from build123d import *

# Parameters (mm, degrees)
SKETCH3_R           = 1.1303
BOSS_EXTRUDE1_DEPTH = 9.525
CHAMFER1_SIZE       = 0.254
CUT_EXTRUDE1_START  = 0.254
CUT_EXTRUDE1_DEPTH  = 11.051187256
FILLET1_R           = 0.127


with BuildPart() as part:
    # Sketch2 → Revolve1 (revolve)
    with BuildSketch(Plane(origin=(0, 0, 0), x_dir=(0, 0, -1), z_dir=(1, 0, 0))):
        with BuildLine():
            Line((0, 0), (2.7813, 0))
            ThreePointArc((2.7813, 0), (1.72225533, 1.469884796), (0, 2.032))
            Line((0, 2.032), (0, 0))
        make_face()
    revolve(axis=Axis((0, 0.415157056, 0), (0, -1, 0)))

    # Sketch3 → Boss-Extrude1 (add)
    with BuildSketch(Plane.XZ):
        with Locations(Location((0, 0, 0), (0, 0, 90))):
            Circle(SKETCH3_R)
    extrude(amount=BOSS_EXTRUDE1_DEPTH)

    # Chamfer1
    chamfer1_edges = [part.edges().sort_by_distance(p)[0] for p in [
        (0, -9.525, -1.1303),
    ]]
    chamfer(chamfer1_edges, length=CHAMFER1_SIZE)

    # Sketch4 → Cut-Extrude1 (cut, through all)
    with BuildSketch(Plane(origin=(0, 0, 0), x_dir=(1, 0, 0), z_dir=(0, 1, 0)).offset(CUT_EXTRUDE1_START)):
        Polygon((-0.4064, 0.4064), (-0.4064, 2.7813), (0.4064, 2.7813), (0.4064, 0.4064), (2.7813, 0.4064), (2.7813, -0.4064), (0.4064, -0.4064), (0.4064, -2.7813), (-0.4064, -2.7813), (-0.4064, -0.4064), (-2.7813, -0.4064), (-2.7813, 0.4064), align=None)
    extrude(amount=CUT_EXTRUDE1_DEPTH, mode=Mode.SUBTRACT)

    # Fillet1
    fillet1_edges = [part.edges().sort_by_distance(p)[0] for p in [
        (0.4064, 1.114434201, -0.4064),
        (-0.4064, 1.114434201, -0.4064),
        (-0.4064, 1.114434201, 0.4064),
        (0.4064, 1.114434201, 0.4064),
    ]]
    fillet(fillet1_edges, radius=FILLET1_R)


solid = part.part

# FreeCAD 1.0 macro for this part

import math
import FreeCAD as App
import Part
import Sketcher
Q = App.Units.Quantity


def edges_at(feature, points):
    """Names of the edges that pass closest to the given points."""
    edges = feature.Shape.Edges
    near = lambda p: min(range(len(edges)), key=lambda i: edges[i].distToShape(Part.Vertex(*p))[0])
    return sorted({f"Edge{near(p) + 1}" for p in points})

doc = App.newDocument("Part")
body = doc.addObject("PartDesign::Body", "Body")

# Sketch on YZ plane
sketch1 = body.newObject("Sketcher::SketchObject", "Sketch")
sketch1.AttachmentSupport = (doc.getObject("YZ_Plane"), [""])
sketch1.MapMode = "FlatFace"
sketch1.addGeometry(Part.LineSegment(App.Vector(0, 0, 0), App.Vector(0, -2.7813, 0)), False)
sketch1.addGeometry(Part.ArcOfCircle(Part.Circle(App.Vector(-0.887452, 0, 0), App.Vector(0, 0, 1), 2.919452), math.radians(-72.303251), math.radians(0)), False)
sketch1.addGeometry(Part.LineSegment(App.Vector(2.032, 0, 0), App.Vector(0, 0, 0)), False)
sketch1.addConstraint(Sketcher.Constraint("Coincident", 0, 2, 1, 1))
sketch1.addConstraint(Sketcher.Constraint("Coincident", 1, 2, 2, 1))
sketch1.addConstraint(Sketcher.Constraint("Coincident", 2, 2, 0, 1))
sketch1.addConstraint(Sketcher.Constraint("Vertical", 0))
sketch1.addConstraint(Sketcher.Constraint("Horizontal", 2))
sketch1.addConstraint(Sketcher.Constraint("Coincident", 2, 2, -1, 1))
sketch1.addConstraint(Sketcher.Constraint("PointOnObject", 1, 3, -1))
sketch1.addConstraint(Sketcher.Constraint("DistanceX", 2, 2, 2, 1, Q("0.08 in")))
sketch1.addConstraint(Sketcher.Constraint("DistanceY", 0, 2, 0, 1, Q("0.1095 in")))
revolution = body.newObject("PartDesign::Revolution", "Revolution")
revolution.Profile = sketch1
revolution.ReferenceAxis = (sketch1, ["H_Axis"])
revolution.Angle = 360

# Sketch on XZ plane
sketch2 = body.newObject("Sketcher::SketchObject", "Sketch001")
sketch2.AttachmentSupport = (doc.getObject("XZ_Plane"), [""])
sketch2.MapMode = "FlatFace"
sketch2.addGeometry(Part.Circle(App.Vector(0, 0, 0), App.Vector(0, 0, 1), 1.1303), False)
sketch2.addConstraint(Sketcher.Constraint("Coincident", 0, 3, -1, 1))
sketch2.addConstraint(Sketcher.Constraint("Diameter", 0, Q("0.089 in")))
pad1 = body.newObject("PartDesign::Pad", "Pad")
pad1.Profile = sketch2
pad1.Length = Q("0.375 in")
doc.recompute()

chamfer = body.newObject("PartDesign::Chamfer", "Chamfer")
chamfer.Base = (pad1, edges_at(pad1, [(0, -9.525, -1.13)]))
chamfer.Size = Q("0.01 in")

# Sketch on XZ plane
sketch3 = body.newObject("Sketcher::SketchObject", "Sketch002")
sketch3.AttachmentSupport = (doc.getObject("XZ_Plane"), [""])
sketch3.MapMode = "FlatFace"
sketch3.AttachmentOffset = App.Placement(App.Vector(0, 0, -0.01 * 25.4), App.Rotation())
sketch3.addGeometry(Part.LineSegment(App.Vector(-0.4064, -2.7813, 0), App.Vector(-0.4064, -0.4064, 0)), False)
sketch3.addGeometry(Part.LineSegment(App.Vector(-0.4064, -0.4064, 0), App.Vector(-2.7813, -0.4064, 0)), False)
sketch3.addGeometry(Part.LineSegment(App.Vector(-2.7813, -0.4064, 0), App.Vector(-2.7813, 0.4064, 0)), False)
sketch3.addGeometry(Part.LineSegment(App.Vector(-2.7813, 0.4064, 0), App.Vector(-0.4064, 0.4064, 0)), False)
sketch3.addGeometry(Part.LineSegment(App.Vector(-0.4064, 0.4064, 0), App.Vector(-0.4064, 2.7813, 0)), False)
sketch3.addGeometry(Part.LineSegment(App.Vector(-0.4064, 2.7813, 0), App.Vector(0.4064, 2.7813, 0)), False)
sketch3.addGeometry(Part.LineSegment(App.Vector(0.4064, 2.7813, 0), App.Vector(0.4064, 0.4064, 0)), False)
sketch3.addGeometry(Part.LineSegment(App.Vector(0.4064, 0.4064, 0), App.Vector(2.7813, 0.4064, 0)), False)
sketch3.addGeometry(Part.LineSegment(App.Vector(2.7813, 0.4064, 0), App.Vector(2.7813, -0.4064, 0)), False)
sketch3.addGeometry(Part.LineSegment(App.Vector(2.7813, -0.4064, 0), App.Vector(0.4064, -0.4064, 0)), False)
sketch3.addGeometry(Part.LineSegment(App.Vector(0.4064, -0.4064, 0), App.Vector(0.4064, -2.7813, 0)), False)
sketch3.addGeometry(Part.LineSegment(App.Vector(0.4064, -2.7813, 0), App.Vector(-0.4064, -2.7813, 0)), False)
sketch3.addConstraint(Sketcher.Constraint("Coincident", 0, 2, 1, 1))
sketch3.addConstraint(Sketcher.Constraint("Coincident", 1, 2, 2, 1))
sketch3.addConstraint(Sketcher.Constraint("Coincident", 2, 2, 3, 1))
sketch3.addConstraint(Sketcher.Constraint("Coincident", 3, 2, 4, 1))
sketch3.addConstraint(Sketcher.Constraint("Coincident", 4, 2, 5, 1))
sketch3.addConstraint(Sketcher.Constraint("Coincident", 5, 2, 6, 1))
sketch3.addConstraint(Sketcher.Constraint("Coincident", 6, 2, 7, 1))
sketch3.addConstraint(Sketcher.Constraint("Coincident", 7, 2, 8, 1))
sketch3.addConstraint(Sketcher.Constraint("Coincident", 8, 2, 9, 1))
sketch3.addConstraint(Sketcher.Constraint("Coincident", 9, 2, 10, 1))
sketch3.addConstraint(Sketcher.Constraint("Coincident", 10, 2, 11, 1))
sketch3.addConstraint(Sketcher.Constraint("Coincident", 11, 2, 0, 1))
sketch3.addConstraint(Sketcher.Constraint("Vertical", 0))
sketch3.addConstraint(Sketcher.Constraint("Horizontal", 1))
sketch3.addConstraint(Sketcher.Constraint("Vertical", 2))
sketch3.addConstraint(Sketcher.Constraint("Horizontal", 3))
sketch3.addConstraint(Sketcher.Constraint("Vertical", 4))
sketch3.addConstraint(Sketcher.Constraint("Horizontal", 5))
sketch3.addConstraint(Sketcher.Constraint("Vertical", 6))
sketch3.addConstraint(Sketcher.Constraint("Horizontal", 7))
sketch3.addConstraint(Sketcher.Constraint("Vertical", 8))
sketch3.addConstraint(Sketcher.Constraint("Horizontal", 9))
sketch3.addConstraint(Sketcher.Constraint("Vertical", 10))
sketch3.addConstraint(Sketcher.Constraint("Horizontal", 11))
sketch3.addConstraint(Sketcher.Constraint("Symmetric", 0, 2, 6, 2, -1, 1))
sketch3.addConstraint(Sketcher.Constraint("Symmetric", 2, 2, 8, 2, -1, 1))
sketch3.addConstraint(Sketcher.Constraint("Symmetric", 4, 2, 10, 2, -1, 1))
sketch3.addConstraint(Sketcher.Constraint("Symmetric", 3, 2, 6, 2, -2))
sketch3.addConstraint(Sketcher.Constraint("Equal", 9, 0))
sketch3.addConstraint(Sketcher.Constraint("Equal", 11, 2))
sketch3.addConstraint(Sketcher.Constraint("DistanceX", 5, 1, 5, 2, Q("0.032 in")))
sketch3.addConstraint(Sketcher.Constraint("DistanceX", 1, 2, 1, 1, Q("0.0935 in")))
pocket1 = body.newObject("PartDesign::Pocket", "Pocket")
pocket1.Profile = sketch3
pocket1.Type = "ThroughAll"
doc.recompute()

fillet = body.newObject("PartDesign::Fillet", "Fillet")
fillet.Base = (pocket1, edges_at(pocket1, [
    (0.406, 1.114, -0.406),
    (-0.406, 1.114, -0.406),
    (-0.406, 1.114, 0.406),
    (0.406, 1.114, 0.406),
]))
fillet.Radius = Q("0.005 in")

doc.recompute()
